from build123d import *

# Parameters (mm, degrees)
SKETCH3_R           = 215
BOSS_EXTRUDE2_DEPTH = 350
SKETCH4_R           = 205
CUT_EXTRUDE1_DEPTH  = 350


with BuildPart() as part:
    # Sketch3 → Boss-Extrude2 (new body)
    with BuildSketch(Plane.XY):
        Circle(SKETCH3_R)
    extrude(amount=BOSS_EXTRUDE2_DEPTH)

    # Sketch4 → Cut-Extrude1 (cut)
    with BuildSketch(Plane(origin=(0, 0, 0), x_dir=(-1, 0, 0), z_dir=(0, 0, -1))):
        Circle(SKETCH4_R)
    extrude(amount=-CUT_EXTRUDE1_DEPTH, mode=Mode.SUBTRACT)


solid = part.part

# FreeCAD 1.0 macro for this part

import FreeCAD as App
import Part
import Sketcher
from FreeCAD import Vector

doc = App.newDocument("Part")
params = doc.addObject("Spreadsheet::Sheet", "Params")
for row, (alias, value) in enumerate([
    ("sketch1_diameter", "430 mm"),
    ("pad1_length", "350 mm"),
    ("sketch2_diameter", "410 mm"),
    ("pocket1_length", "350 mm"),
], start=1):
    params.set(f"A{row}", alias)
    params.set(f"B{row}", "=" + value)
    params.setAlias(f"B{row}", alias)

body = doc.addObject("PartDesign::Body", "Body")

# Sketch on XY plane
sketch1 = body.newObject("Sketcher::SketchObject", "Sketch")
sketch1.AttachmentSupport = (doc.getObject("XY_Plane"), [""])
sketch1.MapMode = "FlatFace"
sketch1.addGeometry(Part.Circle(Vector(0, 0, 0), Vector(0, 0, 1), 215), False)
sketch1.addConstraint([
    Sketcher.Constraint("Coincident", 0, 3, -1, 1),
    Sketcher.Constraint("Diameter", 0, 430.0),
])
sketch1.setExpression("Constraints[1]", "Params.sketch1_diameter")
pad1 = body.newObject("PartDesign::Pad", "Pad")
pad1.Profile = sketch1
pad1.setExpression("Length", "Params.pad1_length")

# Sketch on XY plane
sketch2 = body.newObject("Sketcher::SketchObject", "Sketch001")
sketch2.AttachmentSupport = (doc.getObject("XY_Plane"), [""])
sketch2.MapMode = "FlatFace"
sketch2.addGeometry(Part.Circle(Vector(0, 0, 0), Vector(0, 0, 1), 205), False)
sketch2.addConstraint([
    Sketcher.Constraint("Coincident", 0, 3, -1, 1),
    Sketcher.Constraint("Diameter", 0, 410.0),
])
sketch2.setExpression("Constraints[1]", "Params.sketch2_diameter")
pocket1 = body.newObject("PartDesign::Pocket", "Pocket")
pocket1.Profile = sketch2
pocket1.setExpression("Length", "Params.pocket1_length")
pocket1.Reversed = True

doc.recompute()
